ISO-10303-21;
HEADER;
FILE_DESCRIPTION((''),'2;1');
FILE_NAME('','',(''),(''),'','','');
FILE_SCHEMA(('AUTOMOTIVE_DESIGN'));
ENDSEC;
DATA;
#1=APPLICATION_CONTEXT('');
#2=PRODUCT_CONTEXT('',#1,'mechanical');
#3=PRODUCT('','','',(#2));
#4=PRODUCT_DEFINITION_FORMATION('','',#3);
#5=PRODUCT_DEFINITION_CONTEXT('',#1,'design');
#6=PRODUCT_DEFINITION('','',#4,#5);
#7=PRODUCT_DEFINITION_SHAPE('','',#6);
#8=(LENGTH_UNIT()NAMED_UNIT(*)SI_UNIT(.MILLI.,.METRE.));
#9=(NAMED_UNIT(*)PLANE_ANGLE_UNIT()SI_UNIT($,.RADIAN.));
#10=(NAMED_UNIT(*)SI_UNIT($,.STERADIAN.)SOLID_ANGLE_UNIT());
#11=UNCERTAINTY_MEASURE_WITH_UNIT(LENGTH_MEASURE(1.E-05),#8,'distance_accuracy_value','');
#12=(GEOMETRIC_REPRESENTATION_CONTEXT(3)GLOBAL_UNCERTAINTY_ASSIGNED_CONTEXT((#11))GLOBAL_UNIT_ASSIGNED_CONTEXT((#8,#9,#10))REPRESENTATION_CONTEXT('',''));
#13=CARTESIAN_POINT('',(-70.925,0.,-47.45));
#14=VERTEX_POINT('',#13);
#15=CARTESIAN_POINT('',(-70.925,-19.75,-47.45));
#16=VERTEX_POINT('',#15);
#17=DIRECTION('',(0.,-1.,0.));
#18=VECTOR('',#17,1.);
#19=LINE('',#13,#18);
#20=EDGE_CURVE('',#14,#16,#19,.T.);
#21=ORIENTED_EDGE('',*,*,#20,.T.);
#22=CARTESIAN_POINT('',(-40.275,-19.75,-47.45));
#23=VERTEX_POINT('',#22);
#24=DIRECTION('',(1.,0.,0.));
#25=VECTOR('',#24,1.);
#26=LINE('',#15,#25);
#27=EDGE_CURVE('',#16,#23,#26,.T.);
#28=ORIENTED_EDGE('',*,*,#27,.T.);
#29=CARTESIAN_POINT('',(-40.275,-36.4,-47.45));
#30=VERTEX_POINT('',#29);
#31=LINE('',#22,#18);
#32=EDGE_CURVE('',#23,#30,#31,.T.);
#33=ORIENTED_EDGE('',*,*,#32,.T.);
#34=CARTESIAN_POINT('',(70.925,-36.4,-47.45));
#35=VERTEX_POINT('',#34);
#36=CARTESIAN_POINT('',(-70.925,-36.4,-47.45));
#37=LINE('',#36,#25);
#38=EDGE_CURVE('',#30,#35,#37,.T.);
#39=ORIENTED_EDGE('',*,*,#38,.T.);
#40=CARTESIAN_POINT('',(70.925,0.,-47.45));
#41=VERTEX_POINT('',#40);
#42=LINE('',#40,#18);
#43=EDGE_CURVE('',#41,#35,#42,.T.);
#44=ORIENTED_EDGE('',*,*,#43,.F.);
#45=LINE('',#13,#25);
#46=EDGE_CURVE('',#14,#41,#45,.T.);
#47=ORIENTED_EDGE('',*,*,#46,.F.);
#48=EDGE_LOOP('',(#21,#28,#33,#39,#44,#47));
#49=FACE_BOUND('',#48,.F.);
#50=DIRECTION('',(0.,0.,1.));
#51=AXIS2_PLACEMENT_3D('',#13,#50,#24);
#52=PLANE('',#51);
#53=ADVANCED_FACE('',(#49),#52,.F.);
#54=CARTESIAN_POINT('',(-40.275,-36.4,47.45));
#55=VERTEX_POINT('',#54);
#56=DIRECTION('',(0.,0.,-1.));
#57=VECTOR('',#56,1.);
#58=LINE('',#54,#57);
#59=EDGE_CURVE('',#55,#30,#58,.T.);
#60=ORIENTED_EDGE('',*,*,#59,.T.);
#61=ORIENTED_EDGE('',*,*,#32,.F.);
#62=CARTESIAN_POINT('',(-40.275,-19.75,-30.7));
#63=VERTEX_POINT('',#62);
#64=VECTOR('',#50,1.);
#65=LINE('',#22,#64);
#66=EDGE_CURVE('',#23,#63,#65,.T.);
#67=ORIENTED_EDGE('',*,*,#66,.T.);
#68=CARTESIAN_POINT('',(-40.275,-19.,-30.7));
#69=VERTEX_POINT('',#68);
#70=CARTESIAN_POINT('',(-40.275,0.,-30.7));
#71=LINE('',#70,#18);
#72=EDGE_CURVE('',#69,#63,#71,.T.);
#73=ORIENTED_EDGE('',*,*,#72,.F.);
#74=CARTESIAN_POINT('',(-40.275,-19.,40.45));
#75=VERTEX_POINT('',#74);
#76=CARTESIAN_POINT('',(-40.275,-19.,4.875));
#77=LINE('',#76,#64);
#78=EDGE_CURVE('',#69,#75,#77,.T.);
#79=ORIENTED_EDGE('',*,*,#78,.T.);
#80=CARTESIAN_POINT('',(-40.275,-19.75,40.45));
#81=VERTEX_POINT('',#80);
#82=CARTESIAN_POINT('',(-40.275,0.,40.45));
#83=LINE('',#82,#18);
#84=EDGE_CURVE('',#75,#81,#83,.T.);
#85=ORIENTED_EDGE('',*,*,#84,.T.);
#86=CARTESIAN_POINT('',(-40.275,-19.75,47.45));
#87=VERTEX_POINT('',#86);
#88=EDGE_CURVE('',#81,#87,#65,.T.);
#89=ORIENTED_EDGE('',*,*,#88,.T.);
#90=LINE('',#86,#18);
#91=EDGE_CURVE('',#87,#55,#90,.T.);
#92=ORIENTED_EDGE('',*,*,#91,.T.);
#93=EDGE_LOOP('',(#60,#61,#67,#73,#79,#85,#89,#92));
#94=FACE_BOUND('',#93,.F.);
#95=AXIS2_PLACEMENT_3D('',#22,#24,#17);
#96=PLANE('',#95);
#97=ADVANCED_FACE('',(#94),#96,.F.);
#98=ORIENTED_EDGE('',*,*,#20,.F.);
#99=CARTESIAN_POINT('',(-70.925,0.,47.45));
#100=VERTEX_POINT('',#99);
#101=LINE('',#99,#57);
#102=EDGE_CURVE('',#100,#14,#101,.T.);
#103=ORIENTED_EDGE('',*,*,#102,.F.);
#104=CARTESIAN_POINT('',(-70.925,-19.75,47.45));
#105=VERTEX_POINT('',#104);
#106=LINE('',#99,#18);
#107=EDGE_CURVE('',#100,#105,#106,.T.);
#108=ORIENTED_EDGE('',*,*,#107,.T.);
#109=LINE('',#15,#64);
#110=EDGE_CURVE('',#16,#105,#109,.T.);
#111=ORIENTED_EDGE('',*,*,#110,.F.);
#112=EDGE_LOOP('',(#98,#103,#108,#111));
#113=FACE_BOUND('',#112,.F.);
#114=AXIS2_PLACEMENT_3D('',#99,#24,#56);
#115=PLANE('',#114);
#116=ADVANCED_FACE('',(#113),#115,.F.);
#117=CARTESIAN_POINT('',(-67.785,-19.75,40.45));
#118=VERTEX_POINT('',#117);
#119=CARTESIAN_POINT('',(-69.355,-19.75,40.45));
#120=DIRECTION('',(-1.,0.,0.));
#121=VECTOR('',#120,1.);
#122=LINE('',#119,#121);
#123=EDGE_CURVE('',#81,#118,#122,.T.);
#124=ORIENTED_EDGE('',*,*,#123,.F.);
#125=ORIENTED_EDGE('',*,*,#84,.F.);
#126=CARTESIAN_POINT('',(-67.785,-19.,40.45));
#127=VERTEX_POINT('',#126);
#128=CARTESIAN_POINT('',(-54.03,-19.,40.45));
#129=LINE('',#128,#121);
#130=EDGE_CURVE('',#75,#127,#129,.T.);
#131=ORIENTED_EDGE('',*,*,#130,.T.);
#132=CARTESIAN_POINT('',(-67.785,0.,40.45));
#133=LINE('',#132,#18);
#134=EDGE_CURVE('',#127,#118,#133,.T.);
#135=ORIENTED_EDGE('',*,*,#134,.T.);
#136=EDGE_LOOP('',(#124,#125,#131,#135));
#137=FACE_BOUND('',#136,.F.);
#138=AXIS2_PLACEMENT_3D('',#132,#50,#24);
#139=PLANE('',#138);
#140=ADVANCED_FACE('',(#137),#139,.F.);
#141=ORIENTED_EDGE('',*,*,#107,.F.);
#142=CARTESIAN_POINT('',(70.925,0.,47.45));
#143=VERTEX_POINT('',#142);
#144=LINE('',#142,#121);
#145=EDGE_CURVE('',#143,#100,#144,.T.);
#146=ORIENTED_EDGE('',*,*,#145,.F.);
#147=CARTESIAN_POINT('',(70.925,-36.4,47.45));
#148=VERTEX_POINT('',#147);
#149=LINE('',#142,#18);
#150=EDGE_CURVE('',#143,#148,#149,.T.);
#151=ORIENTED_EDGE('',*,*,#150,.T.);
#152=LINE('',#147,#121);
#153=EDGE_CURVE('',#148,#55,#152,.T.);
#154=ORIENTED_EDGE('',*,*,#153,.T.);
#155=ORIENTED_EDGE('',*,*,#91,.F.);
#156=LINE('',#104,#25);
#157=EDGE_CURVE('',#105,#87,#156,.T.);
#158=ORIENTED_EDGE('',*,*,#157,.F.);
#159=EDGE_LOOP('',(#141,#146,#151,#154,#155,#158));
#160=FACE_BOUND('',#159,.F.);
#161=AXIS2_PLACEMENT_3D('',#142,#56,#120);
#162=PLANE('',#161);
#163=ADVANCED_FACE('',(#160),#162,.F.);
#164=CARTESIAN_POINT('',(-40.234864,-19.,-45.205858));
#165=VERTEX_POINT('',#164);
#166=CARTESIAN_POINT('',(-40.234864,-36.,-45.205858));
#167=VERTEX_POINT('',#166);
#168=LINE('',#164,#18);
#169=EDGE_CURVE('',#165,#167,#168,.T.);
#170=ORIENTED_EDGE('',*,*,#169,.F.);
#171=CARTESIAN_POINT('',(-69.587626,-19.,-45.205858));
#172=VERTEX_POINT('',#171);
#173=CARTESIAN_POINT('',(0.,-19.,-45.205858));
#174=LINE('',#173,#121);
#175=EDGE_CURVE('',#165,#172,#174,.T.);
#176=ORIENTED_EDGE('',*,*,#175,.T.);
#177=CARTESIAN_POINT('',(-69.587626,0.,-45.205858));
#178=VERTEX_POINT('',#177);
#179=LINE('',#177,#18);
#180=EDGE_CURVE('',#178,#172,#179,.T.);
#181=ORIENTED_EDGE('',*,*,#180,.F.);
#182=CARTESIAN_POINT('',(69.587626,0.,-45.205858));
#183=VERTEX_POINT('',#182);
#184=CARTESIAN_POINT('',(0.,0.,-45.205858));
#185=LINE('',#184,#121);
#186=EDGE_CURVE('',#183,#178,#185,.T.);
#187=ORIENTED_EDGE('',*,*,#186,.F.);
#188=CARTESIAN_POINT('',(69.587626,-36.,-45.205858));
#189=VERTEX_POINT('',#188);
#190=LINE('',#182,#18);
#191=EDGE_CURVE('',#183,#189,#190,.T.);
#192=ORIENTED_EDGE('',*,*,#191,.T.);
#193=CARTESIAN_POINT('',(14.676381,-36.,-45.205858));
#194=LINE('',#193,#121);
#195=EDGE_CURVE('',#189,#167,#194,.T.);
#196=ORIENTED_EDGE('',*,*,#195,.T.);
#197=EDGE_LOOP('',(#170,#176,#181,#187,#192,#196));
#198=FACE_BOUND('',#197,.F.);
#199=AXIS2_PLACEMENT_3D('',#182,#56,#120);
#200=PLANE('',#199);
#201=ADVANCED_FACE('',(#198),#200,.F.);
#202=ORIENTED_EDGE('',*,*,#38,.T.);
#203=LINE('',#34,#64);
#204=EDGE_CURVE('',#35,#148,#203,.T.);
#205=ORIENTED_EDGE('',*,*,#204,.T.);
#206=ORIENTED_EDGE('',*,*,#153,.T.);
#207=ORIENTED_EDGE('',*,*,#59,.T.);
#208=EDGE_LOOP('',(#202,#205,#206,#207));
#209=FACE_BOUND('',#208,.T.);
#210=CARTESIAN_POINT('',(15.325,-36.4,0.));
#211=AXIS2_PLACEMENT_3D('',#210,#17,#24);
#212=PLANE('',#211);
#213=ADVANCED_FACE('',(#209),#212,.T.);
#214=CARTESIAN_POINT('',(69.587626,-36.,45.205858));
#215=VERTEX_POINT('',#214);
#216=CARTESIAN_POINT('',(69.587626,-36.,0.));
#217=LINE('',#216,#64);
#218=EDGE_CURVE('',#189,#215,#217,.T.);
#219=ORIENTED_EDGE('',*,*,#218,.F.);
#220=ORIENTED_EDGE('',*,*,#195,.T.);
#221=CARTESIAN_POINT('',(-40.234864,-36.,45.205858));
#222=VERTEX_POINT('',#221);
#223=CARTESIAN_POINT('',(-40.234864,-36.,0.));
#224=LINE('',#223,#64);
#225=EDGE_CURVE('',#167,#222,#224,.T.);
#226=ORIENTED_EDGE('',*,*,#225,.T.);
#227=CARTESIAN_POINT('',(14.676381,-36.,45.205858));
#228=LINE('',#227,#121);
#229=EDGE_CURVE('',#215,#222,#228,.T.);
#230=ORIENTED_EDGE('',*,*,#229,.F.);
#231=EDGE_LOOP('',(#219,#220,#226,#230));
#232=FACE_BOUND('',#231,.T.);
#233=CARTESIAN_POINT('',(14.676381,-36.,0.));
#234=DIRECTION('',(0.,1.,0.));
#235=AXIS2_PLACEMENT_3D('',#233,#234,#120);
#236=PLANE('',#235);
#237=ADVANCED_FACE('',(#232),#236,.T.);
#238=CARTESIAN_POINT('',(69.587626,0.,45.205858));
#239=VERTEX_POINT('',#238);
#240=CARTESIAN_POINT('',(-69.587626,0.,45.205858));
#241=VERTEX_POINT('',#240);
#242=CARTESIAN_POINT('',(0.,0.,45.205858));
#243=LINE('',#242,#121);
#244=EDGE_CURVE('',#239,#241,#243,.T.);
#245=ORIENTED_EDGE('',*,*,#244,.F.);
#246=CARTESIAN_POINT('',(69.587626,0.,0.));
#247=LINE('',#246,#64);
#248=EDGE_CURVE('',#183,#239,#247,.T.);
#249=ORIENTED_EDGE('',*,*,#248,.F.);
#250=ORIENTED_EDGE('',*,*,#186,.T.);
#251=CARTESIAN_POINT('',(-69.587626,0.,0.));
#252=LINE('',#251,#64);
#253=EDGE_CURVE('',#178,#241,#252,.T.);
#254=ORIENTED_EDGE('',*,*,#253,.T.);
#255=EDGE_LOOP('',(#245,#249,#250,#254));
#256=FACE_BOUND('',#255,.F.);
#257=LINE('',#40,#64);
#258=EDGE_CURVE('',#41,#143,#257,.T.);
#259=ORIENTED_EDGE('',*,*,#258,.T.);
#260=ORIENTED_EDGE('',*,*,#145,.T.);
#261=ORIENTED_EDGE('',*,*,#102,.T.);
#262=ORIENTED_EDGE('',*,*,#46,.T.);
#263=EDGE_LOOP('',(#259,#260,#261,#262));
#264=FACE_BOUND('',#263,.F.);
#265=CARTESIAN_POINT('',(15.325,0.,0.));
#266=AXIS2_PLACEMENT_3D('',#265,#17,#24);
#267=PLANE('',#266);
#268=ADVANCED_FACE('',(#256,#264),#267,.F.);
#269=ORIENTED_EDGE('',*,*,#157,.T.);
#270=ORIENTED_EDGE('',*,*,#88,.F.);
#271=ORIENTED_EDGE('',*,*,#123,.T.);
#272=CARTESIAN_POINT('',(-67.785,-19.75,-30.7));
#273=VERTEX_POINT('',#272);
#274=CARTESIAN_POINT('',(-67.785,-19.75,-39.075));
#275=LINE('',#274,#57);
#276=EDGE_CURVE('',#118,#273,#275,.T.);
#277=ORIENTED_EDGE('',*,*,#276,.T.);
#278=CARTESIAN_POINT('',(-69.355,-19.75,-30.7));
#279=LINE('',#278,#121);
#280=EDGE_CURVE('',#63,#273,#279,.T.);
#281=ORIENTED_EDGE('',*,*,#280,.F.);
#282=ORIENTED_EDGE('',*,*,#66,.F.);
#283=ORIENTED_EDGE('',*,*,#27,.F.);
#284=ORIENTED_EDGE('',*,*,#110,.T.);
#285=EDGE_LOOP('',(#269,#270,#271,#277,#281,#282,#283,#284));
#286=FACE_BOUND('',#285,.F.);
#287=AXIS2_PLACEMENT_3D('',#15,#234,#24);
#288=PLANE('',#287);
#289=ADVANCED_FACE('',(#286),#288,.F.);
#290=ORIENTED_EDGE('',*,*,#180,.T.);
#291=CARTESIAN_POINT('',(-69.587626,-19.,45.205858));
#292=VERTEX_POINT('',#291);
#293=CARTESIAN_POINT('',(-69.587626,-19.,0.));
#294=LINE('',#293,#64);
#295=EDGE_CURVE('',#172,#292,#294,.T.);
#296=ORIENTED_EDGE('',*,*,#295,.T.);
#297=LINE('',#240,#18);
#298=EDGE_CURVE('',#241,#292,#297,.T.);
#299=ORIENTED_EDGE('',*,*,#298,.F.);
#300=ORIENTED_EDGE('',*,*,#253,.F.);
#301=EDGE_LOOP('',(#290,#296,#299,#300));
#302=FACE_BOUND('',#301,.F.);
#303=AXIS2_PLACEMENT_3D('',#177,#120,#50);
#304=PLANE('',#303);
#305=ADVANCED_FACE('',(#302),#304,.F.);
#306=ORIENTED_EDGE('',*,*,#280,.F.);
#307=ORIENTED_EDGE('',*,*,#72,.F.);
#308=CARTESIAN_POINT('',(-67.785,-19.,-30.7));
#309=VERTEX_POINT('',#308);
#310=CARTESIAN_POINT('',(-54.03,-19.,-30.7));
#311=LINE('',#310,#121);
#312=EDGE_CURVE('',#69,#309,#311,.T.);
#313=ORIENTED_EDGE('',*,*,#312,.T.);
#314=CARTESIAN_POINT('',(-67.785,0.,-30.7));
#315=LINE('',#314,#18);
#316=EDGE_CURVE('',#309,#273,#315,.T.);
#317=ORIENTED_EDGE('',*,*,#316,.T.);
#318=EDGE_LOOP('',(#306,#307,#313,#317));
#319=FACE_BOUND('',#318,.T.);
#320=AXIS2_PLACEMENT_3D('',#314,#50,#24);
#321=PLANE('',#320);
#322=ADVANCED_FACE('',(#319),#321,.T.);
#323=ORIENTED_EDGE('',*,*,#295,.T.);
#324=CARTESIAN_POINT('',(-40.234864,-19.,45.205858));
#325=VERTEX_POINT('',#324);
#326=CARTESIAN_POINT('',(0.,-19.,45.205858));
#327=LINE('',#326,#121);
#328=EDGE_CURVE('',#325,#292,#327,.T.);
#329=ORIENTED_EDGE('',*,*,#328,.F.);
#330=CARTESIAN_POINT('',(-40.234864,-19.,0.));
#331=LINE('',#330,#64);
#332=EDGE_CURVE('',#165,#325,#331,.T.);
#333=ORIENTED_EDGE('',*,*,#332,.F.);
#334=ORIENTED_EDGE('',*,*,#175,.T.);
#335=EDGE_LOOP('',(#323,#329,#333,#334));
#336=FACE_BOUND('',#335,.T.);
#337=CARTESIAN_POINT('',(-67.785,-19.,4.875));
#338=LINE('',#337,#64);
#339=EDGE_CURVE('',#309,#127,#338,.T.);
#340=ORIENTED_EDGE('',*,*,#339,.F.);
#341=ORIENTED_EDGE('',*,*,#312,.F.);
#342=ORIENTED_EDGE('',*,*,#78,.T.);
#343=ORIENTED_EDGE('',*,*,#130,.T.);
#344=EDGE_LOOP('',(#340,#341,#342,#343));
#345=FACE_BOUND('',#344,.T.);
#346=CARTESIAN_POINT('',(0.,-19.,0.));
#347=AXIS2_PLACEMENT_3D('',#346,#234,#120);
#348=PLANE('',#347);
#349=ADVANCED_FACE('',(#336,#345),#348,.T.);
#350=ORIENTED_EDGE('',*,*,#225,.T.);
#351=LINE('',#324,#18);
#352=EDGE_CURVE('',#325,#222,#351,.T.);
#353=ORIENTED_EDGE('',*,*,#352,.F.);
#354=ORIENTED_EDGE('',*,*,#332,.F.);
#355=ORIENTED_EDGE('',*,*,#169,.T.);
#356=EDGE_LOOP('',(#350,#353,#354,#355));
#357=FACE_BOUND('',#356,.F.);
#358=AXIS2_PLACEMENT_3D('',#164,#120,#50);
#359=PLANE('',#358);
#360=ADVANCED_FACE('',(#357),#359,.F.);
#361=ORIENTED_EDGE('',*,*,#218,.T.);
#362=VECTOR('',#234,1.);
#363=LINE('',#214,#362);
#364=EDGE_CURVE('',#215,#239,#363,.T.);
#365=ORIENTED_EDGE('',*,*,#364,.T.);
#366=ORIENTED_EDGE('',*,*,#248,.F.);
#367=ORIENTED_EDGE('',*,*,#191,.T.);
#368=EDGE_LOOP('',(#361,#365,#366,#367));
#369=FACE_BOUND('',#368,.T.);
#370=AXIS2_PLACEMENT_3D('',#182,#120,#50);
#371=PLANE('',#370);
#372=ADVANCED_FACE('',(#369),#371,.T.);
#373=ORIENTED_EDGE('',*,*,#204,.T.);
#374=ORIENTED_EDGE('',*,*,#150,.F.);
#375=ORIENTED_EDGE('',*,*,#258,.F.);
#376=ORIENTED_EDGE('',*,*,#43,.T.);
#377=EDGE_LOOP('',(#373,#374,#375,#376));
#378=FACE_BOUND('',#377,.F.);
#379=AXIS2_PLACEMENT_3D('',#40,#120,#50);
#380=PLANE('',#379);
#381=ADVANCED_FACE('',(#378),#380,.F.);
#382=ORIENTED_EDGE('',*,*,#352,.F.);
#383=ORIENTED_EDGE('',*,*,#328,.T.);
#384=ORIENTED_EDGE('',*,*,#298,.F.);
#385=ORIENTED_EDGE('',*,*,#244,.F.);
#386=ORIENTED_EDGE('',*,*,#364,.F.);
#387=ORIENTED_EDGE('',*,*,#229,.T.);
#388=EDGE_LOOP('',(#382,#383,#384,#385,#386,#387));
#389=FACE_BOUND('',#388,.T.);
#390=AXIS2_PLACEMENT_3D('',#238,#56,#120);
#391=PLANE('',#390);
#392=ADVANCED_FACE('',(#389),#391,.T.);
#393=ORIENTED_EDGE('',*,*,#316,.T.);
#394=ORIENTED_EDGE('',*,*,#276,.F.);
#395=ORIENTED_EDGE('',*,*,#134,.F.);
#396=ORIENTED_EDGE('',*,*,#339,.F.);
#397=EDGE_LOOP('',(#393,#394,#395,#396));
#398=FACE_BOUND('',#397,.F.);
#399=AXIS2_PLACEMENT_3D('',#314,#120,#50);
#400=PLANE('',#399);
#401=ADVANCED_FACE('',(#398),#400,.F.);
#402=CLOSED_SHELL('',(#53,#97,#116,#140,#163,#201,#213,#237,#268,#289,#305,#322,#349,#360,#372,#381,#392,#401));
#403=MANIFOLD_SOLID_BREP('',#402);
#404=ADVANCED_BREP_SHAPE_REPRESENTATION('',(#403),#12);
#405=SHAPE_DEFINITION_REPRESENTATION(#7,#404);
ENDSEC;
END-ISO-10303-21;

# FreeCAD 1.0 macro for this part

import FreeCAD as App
import Part
import Sketcher

V = App.Vector
Q = App.Units.Quantity


def add_polygon(sketch, points):
    """Adds a closed chain of lines whose ends are joined by coincident constraints."""
    first, n = sketch.GeometryCount, len(points)
    for a, b in zip(points, points[1:] + points[:1]):
        sketch.addGeometry(Part.LineSegment(App.Vector(*a, 0), App.Vector(*b, 0)), False)
    for i in range(n):
        sketch.addConstraint(Sketcher.Constraint("Coincident", first + i, 2, first + (i + 1) % n, 1))

doc = App.newDocument("Part")
body = doc.addObject("PartDesign::Body", "Body")

sketch1 = body.newObject("Sketcher::SketchObject", "Sketch")
sketch1.AttachmentSupport = (doc.getObject("XZ_Plane"), [""])
sketch1.MapMode = "FlatFace"
add_polygon(sketch1, [(70.925, -47.45), (70.925, 47.45), (-70.925, 47.45), (-70.925, -47.45)])
add_polygon(sketch1, [(-40.275, 40.45), (-40.275, -30.7), (-67.785, -30.7), (-67.785, 40.45)])
sketch1.addConstraint(Sketcher.Constraint("Vertical", 0))
sketch1.addConstraint(Sketcher.Constraint("Horizontal", 1))
sketch1.addConstraint(Sketcher.Constraint("Vertical", 2))
sketch1.addConstraint(Sketcher.Constraint("Horizontal", 3))
sketch1.addConstraint(Sketcher.Constraint("Vertical", 4))
sketch1.addConstraint(Sketcher.Constraint("Horizontal", 5))
sketch1.addConstraint(Sketcher.Constraint("Vertical", 6))
sketch1.addConstraint(Sketcher.Constraint("Horizontal", 7))
sketch1.addConstraint(Sketcher.Constraint("Symmetric", 0, 2, 2, 2, -1, 1))
sketch1.addConstraint(Sketcher.Constraint("DistanceY", 0, 1, 0, 2, Q("94.9 mm")))
sketch1.addConstraint(Sketcher.Constraint("DistanceY", 6, 2, 1, 2, Q("7 mm")))
sketch1.addConstraint(Sketcher.Constraint("DistanceX", 1, 2, 1, 1, Q("141.85 mm")))
sketch1.addConstraint(Sketcher.Constraint("DistanceX", 5, 2, 5, 1, Q("27.51 mm")))
sketch1.addConstraint(Sketcher.Constraint("DistanceY", 4, 2, 4, 1, Q("71.15 mm")))
sketch1.addConstraint(Sketcher.Constraint("DistanceX", 4, 2, 3, 2, Q("111.2 mm")))
pad1 = body.newObject("PartDesign::Pad", "Pad")
pad1.Profile = sketch1
pad1.Length = 36.4

sketch2 = body.newObject("Sketcher::SketchObject", "Sketch001")
sketch2.AttachmentSupport = (doc.getObject("XY_Plane"), [""])
sketch2.MapMode = "FlatFace"
sketch2.AttachmentOffset = App.Placement(V(0, 0, -47.45), App.Rotation())
add_polygon(sketch2, [(-40.275, -36.4), (-70.925, -36.4), (-70.925, -19.75), (-40.275, -19.75)])
sketch2.addConstraint(Sketcher.Constraint("Horizontal", 0))
sketch2.addConstraint(Sketcher.Constraint("Vertical", 1))
sketch2.addConstraint(Sketcher.Constraint("Horizontal", 2))
sketch2.addConstraint(Sketcher.Constraint("Vertical", 3))
sketch2.addConstraint(Sketcher.Constraint("DistanceX", 0, 2, 0, 1, Q("30.65 mm")))
sketch2.addConstraint(Sketcher.Constraint("DistanceY", 1, 1, 1, 2, Q("16.65 mm")))
sketch2.addConstraint(Sketcher.Constraint("DistanceY", 0, 2, -1, 1, Q("36.4 mm")))
sketch2.addConstraint(Sketcher.Constraint("DistanceX", 0, 2, -1, 1, Q("70.925 mm")))
pocket1 = body.newObject("PartDesign::Pocket", "Pocket")
pocket1.Profile = sketch2
pocket1.Length = 94.9
pocket1.Reversed = True

sketch3 = body.newObject("Sketcher::SketchObject", "Sketch002")
sketch3.AttachmentSupport = (doc.getObject("XZ_Plane"), [""])
sketch3.MapMode = "FlatFace"
add_polygon(sketch3, [(69.587626, 45.205858), (69.587626, -45.205858), (-69.587626, -45.205858), (-69.587626, 45.205858)])
add_polygon(sketch3, [(-67.785, -30.7), (-40.275, -30.7), (-40.275, 40.45), (-67.785, 40.45)])
sketch3.addConstraint(Sketcher.Constraint("Vertical", 0))
sketch3.addConstraint(Sketcher.Constraint("Horizontal", 1))
sketch3.addConstraint(Sketcher.Constraint("Vertical", 2))
sketch3.addConstraint(Sketcher.Constraint("Horizontal", 3))
sketch3.addConstraint(Sketcher.Constraint("Horizontal", 4))
sketch3.addConstraint(Sketcher.Constraint("Vertical", 5))
sketch3.addConstraint(Sketcher.Constraint("Horizontal", 6))
sketch3.addConstraint(Sketcher.Constraint("Vertical", 7))
sketch3.addConstraint(Sketcher.Constraint("Symmetric", 0, 2, 2, 2, -1, 1))
sketch3.addConstraint(Sketcher.Constraint("DistanceX", 4, 1, 4, 2, Q("27.51 mm")))
sketch3.addConstraint(Sketcher.Constraint("DistanceY", 5, 1, 5, 2, Q("71.15 mm")))
sketch3.addConstraint(Sketcher.Constraint("DistanceY", 4, 2, -1, 1, Q("30.7 mm")))
sketch3.addConstraint(Sketcher.Constraint("DistanceX", 4, 2, -1, 1, Q("40.275 mm")))
sketch3.addConstraint(Sketcher.Constraint("DistanceX", 1, 2, 1, 1, Q("139.175252 mm")))
sketch3.addConstraint(Sketcher.Constraint("DistanceY", 0, 2, 0, 1, Q("90.411716 mm")))
pocket2 = body.newObject("PartDesign::Pocket", "Pocket001")
pocket2.Profile = sketch3
pocket2.Length = 19
pocket2.Reversed = True

sketch4 = body.newObject("Sketcher::SketchObject", "Sketch003")
sketch4.AttachmentSupport = (doc.getObject("XZ_Plane"), [""])
sketch4.MapMode = "FlatFace"
sketch4.AttachmentOffset = App.Placement(V(0, 0, 19), App.Rotation())
add_polygon(sketch4, [(69.587626, 45.205858), (69.587626, -45.205858), (-40.234864, -45.205858), (-40.234864, 45.205858)])
sketch4.addConstraint(Sketcher.Constraint("Vertical", 0))
sketch4.addConstraint(Sketcher.Constraint("Horizontal", 1))
sketch4.addConstraint(Sketcher.Constraint("Vertical", 2))
sketch4.addConstraint(Sketcher.Constraint("Horizontal", 3))
sketch4.addConstraint(Sketcher.Constraint("DistanceX", 1, 2, 1, 1, Q("109.82249 mm")))
sketch4.addConstraint(Sketcher.Constraint("DistanceY", 0, 2, 0, 1, Q("90.411716 mm")))
sketch4.addConstraint(Sketcher.Constraint("DistanceX", -1, 1, 0, 2, Q("69.587626 mm")))
sketch4.addConstraint(Sketcher.Constraint("DistanceY", 0, 2, -1, 1, Q("45.205858 mm")))
pocket3 = body.newObject("PartDesign::Pocket", "Pocket002")
pocket3.Profile = sketch4
pocket3.Length = 17
pocket3.Reversed = True

doc.recompute()
